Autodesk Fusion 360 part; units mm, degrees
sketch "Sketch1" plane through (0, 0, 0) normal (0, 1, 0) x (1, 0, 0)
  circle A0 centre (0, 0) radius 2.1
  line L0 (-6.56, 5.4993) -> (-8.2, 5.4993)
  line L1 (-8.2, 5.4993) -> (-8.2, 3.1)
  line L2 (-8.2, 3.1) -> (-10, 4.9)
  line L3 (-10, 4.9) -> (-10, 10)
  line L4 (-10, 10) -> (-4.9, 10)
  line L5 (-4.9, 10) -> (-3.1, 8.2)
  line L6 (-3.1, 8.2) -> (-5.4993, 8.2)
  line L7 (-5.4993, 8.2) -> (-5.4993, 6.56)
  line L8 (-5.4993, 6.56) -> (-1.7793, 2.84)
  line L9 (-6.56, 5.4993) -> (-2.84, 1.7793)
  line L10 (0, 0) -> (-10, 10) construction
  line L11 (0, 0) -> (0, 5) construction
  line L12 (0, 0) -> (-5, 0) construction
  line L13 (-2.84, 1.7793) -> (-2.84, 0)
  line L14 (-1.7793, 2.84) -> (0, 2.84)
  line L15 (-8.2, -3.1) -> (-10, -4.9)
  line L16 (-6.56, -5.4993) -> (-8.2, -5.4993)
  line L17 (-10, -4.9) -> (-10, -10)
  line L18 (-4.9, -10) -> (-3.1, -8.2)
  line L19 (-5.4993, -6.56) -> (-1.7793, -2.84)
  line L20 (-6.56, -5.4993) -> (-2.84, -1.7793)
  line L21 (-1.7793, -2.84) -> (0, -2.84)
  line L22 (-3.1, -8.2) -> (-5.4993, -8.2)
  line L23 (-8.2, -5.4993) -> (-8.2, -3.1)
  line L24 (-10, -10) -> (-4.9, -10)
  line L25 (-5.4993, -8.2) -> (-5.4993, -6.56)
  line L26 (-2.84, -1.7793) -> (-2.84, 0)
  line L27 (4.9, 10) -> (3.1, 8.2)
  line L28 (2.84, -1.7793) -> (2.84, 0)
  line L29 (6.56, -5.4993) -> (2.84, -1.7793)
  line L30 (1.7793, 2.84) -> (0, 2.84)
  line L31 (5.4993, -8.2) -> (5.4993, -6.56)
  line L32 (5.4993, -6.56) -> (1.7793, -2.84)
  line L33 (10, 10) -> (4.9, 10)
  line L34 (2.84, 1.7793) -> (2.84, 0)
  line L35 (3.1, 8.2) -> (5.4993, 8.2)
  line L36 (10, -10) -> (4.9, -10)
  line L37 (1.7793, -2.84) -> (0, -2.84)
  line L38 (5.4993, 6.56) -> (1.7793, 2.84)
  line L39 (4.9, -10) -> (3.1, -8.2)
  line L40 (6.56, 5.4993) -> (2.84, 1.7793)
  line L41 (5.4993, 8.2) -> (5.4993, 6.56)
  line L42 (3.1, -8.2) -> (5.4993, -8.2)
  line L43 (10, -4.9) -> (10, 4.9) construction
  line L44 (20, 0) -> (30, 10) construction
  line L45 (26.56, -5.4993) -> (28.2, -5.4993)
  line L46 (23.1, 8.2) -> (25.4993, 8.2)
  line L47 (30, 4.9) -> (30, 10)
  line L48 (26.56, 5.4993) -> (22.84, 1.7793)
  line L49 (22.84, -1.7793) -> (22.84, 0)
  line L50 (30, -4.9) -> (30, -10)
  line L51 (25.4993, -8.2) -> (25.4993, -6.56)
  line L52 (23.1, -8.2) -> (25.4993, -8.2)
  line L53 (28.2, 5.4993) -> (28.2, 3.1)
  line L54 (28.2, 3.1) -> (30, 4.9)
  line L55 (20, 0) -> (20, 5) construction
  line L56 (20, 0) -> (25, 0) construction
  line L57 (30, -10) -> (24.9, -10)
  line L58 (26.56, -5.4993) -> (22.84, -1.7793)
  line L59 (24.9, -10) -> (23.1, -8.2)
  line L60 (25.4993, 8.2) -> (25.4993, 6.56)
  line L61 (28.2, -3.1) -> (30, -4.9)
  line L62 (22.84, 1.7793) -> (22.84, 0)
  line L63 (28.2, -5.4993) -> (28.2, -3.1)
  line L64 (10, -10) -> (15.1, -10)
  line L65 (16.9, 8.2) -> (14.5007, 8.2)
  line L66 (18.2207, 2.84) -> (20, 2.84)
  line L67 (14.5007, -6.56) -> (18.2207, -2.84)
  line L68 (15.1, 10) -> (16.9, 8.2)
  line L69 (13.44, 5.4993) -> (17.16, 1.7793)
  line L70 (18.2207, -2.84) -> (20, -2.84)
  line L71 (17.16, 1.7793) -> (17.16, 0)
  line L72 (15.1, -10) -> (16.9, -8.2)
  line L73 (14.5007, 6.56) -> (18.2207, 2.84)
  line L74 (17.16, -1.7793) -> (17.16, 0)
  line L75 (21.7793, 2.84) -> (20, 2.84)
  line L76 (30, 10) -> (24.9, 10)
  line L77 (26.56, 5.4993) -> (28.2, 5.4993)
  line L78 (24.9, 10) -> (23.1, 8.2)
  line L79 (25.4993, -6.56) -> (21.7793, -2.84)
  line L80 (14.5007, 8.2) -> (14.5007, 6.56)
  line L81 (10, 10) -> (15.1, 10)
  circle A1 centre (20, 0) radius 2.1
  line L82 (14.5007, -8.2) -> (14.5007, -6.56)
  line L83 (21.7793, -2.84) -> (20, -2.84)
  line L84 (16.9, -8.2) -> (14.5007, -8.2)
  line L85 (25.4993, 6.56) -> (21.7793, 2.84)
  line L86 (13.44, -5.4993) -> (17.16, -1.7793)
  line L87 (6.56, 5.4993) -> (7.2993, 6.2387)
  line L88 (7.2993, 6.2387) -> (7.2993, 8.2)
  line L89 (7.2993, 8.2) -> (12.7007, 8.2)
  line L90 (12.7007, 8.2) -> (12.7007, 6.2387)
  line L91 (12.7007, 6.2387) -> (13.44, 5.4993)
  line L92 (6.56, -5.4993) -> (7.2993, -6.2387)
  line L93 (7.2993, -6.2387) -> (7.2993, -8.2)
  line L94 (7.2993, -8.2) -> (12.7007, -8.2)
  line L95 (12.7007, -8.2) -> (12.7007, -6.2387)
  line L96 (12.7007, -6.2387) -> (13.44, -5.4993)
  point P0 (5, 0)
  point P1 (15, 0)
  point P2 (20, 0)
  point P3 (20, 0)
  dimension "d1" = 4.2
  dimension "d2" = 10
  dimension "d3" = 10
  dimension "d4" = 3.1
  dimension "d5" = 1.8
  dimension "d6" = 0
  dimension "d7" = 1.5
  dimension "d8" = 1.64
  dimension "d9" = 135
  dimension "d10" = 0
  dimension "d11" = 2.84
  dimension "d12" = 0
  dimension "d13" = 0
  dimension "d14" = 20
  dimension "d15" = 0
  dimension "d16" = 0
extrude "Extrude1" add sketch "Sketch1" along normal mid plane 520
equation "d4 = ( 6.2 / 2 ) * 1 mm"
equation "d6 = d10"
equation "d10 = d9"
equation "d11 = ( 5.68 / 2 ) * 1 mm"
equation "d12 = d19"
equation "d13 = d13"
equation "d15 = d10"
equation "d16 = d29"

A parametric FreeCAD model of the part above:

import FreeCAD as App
import Part
import Sketcher
Q = App.Units.Quantity


def add_polygon(sketch, points):
    """Adds a closed chain of lines whose ends are joined by coincident constraints."""
    first, n = sketch.GeometryCount, len(points)
    for a, b in zip(points, points[1:] + points[:1]):
        sketch.addGeometry(Part.LineSegment(App.Vector(*a, 0), App.Vector(*b, 0)), False)
    for i in range(n):
        sketch.addConstraint(Sketcher.Constraint("Coincident", first + i, 2, first + (i + 1) % n, 1))

doc = App.newDocument("Part")
params = doc.addObject("Spreadsheet::Sheet", "Params")
for row, (alias, value) in enumerate([
    ("sketch1_diameter", "4.2 mm"),
    ("sketch1_width", "1.64 mm"),
    ("sketch1_width2", "5.1 mm"),
    ("sketch1_width3", "10.2 mm"),
    ("pad1_length", "520 mm"),
], start=1):
    params.set(f"A{row}", alias)
    params.set(f"B{row}", "=" + value)
    params.setAlias(f"B{row}", alias)

body = doc.addObject("PartDesign::Body", "Body")

sketch1 = doc.addObject("Sketcher::SketchObject", "Sketch")
body.addObject(sketch1)
sketch1.AttachmentSupport = (doc.XZ_Plane, [""])
sketch1.MapMode = "FlatFace"
add_polygon(sketch1, [(-8.2, -5.5), (-6.6, -5.5), (-2.8, -1.8), (-2.8, 1.8), (-6.6, 5.5), (-8.2, 5.5), (-8.2, 3.1), (-10, 4.9), (-10, 10), (-4.9, 10), (-3.1, 8.2), (-5.5, 8.2), (-5.5, 6.6), (-1.8, 2.8), (1.8, 2.8), (5.5, 6.6), (5.5, 8.2), (3.1, 8.2), (4.9, 10), (15.1, 10), (16.9, 8.2), (14.5, 8.2), (14.5, 6.6), (18.2, 2.8), (21.8, 2.8), (25.5, 6.6), (25.5, 8.2), (23.1, 8.2), (24.9, 10), (30, 10), (30, 4.9), (28.2, 3.1), (28.2, 5.5), (26.6, 5.5), (22.8, 1.8), (22.8, -1.8), (26.6, -5.5), (28.2, -5.5), (28.2, -3.1), (30, -4.9), (30, -10), (24.9, -10), (23.1, -8.2), (25.5, -8.2), (25.5, -6.6), (21.8, -2.8), (18.2, -2.8), (14.5, -6.6), (14.5, -8.2), (16.9, -8.2), (15.1, -10), (4.9, -10), (3.1, -8.2), (5.5, -8.2), (5.5, -6.6), (1.8, -2.8), (-1.8, -2.8), (-5.5, -6.6), (-5.5, -8.2), (-3.1, -8.2), (-4.9, -10), (-10, -10), (-10, -4.9), (-8.2, -3.1)])
sketch1.addGeometry(Part.Circle(App.Vector(0, 0, 0), App.Vector(0, 0, 1), 2.1), False)
add_polygon(sketch1, [(6.6, 5.5), (2.8, 1.8), (2.8, -1.8), (6.6, -5.5), (7.3, -6.2), (7.3, -8.2), (12.7, -8.2), (12.7, -6.2), (13.4, -5.5), (17.2, -1.8), (17.2, 1.8), (13.4, 5.5), (12.7, 6.2), (12.7, 8.2), (7.3, 8.2), (7.3, 6.2)])
sketch1.addGeometry(Part.Circle(App.Vector(20, 0, 0), App.Vector(0, 0, 1), 2.1), False)
sketch1.addConstraint([
    Sketcher.Constraint("Horizontal", 0),
    Sketcher.Constraint("Vertical", 2),
    Sketcher.Constraint("Horizontal", 4),
    Sketcher.Constraint("Vertical", 5),
    Sketcher.Constraint("Vertical", 7),
    Sketcher.Constraint("Horizontal", 8),
    Sketcher.Constraint("Horizontal", 10),
    Sketcher.Constraint("Vertical", 11),
    Sketcher.Constraint("Horizontal", 13),
    Sketcher.Constraint("Vertical", 15),
    Sketcher.Constraint("Horizontal", 16),
    Sketcher.Constraint("Horizontal", 18),
    Sketcher.Constraint("Horizontal", 20),
    Sketcher.Constraint("Vertical", 21),
    Sketcher.Constraint("Horizontal", 23),
    Sketcher.Constraint("Vertical", 25),
    Sketcher.Constraint("Horizontal", 26),
    Sketcher.Constraint("Horizontal", 28),
    Sketcher.Constraint("Vertical", 29),
    Sketcher.Constraint("Vertical", 31),
    Sketcher.Constraint("Horizontal", 32),
    Sketcher.Constraint("Vertical", 34),
    Sketcher.Constraint("Horizontal", 36),
    Sketcher.Constraint("Vertical", 37),
    Sketcher.Constraint("Vertical", 39),
    Sketcher.Constraint("Horizontal", 40),
    Sketcher.Constraint("Horizontal", 42),
    Sketcher.Constraint("Vertical", 43),
    Sketcher.Constraint("Horizontal", 45),
    Sketcher.Constraint("Vertical", 47),
    Sketcher.Constraint("Horizontal", 48),
    Sketcher.Constraint("Horizontal", 50),
    Sketcher.Constraint("Horizontal", 52),
    Sketcher.Constraint("Vertical", 53),
    Sketcher.Constraint("Horizontal", 55),
    Sketcher.Constraint("Vertical", 57),
    Sketcher.Constraint("Horizontal", 58),
    Sketcher.Constraint("Horizontal", 60),
    Sketcher.Constraint("Vertical", 61),
    Sketcher.Constraint("Vertical", 63),
    Sketcher.Constraint("Vertical", 66),
    Sketcher.Constraint("Vertical", 69),
    Sketcher.Constraint("Horizontal", 70),
    Sketcher.Constraint("Vertical", 71),
    Sketcher.Constraint("Vertical", 74),
    Sketcher.Constraint("Vertical", 77),
    Sketcher.Constraint("Horizontal", 78),
    Sketcher.Constraint("Vertical", 79),
    Sketcher.Constraint("Coincident", 64, 3, -1, 1),
    Sketcher.Constraint("Equal", 64, 81),
    Sketcher.Constraint("Symmetric", 8, 2, 50, 2, -1, 1),
    Sketcher.Constraint("Symmetric", 9, 2, 51, 2, -1, 1),
    Sketcher.Constraint("Symmetric", 11, 2, 53, 2, -1, 1),
    Sketcher.Constraint("Symmetric", 12, 2, 54, 2, -1, 1),
    Sketcher.Constraint("Symmetric", 14, 2, 56, 2, -1, 1),
    Sketcher.Constraint("Symmetric", 16, 2, 58, 2, -1, 1),
    Sketcher.Constraint("Symmetric", 17, 2, 59, 2, -1, 1),
    Sketcher.Constraint("Symmetric", 1, 2, 65, 2, -1, 1),
    Sketcher.Constraint("Symmetric", 3, 2, 67, 2, -1, 1),
    Sketcher.Constraint("Symmetric", 0, 2, 80, 2, -1, 1),
    Sketcher.Constraint("Symmetric", 11, 2, 14, 2, -2),
    Sketcher.Constraint("Symmetric", 9, 2, 16, 2, -2),
    Sketcher.Constraint("Symmetric", 8, 2, 17, 2, -2),
    Sketcher.Constraint("Symmetric", 0, 2, 67, 2, -2),
    Sketcher.Constraint("Symmetric", 32, 2, 35, 2, -1),
    Sketcher.Constraint("Symmetric", 30, 2, 37, 2, -1),
    Sketcher.Constraint("Symmetric", 29, 2, 38, 2, -1),
    Sketcher.Constraint("Symmetric", 27, 2, 40, 2, -1),
    Sketcher.Constraint("Symmetric", 26, 2, 41, 2, -1),
    Sketcher.Constraint("Symmetric", 24, 2, 43, 2, -1),
    Sketcher.Constraint("Symmetric", 23, 2, 44, 2, -1),
    Sketcher.Constraint("Symmetric", 21, 2, 46, 2, -1),
    Sketcher.Constraint("Symmetric", 19, 2, 48, 2, -1),
    Sketcher.Constraint("Symmetric", 6, 2, 61, 2, -1),
    Sketcher.Constraint("Symmetric", 5, 2, 62, 2, -1),
    Sketcher.Constraint("Symmetric", 72, 2, 75, 2, -1),
    Sketcher.Constraint("Symmetric", 71, 2, 76, 2, -1),
    Sketcher.Constraint("Symmetric", 69, 2, 78, 2, -1),
    Sketcher.Constraint("PointOnObject", 81, 3, -1),
    Sketcher.Constraint("Perpendicular", 1, 3),
    Sketcher.Constraint("Parallel", 3, 6),
    Sketcher.Constraint("Parallel", 6, 9),
    Sketcher.Constraint("Parallel", 9, 12),
    Sketcher.Constraint("Perpendicular", 12, 14),
    Sketcher.Constraint("Parallel", 14, 17),
    Sketcher.Constraint("Perpendicular", 17, 19),
    Sketcher.Constraint("Parallel", 19, 22),
    Sketcher.Constraint("Perpendicular", 22, 24),
    Sketcher.Constraint("Parallel", 24, 27),
    Sketcher.Constraint("Parallel", 27, 30),
    Sketcher.Constraint("Parallel", 30, 33),
    Sketcher.Constraint("Perpendicular", 33, 35),
    Sketcher.Constraint("Perpendicular", 44, 46),
    Sketcher.Constraint("Parallel", 46, 49),
    Sketcher.Constraint("Perpendicular", 54, 56),
    Sketcher.Constraint("Perpendicular", 65, 67),
    Sketcher.Constraint("Parallel", 67, 68),
    Sketcher.Constraint("Perpendicular", 68, 72),
    Sketcher.Constraint("Parallel", 72, 73),
    Sketcher.Constraint("Perpendicular", 73, 75),
    Sketcher.Constraint("Perpendicular", 76, 80),
    Sketcher.Constraint("Horizontal", 16, 2, 19, 2),
    Sketcher.Constraint("Horizontal", 14, 2, 21, 2),
    Sketcher.Constraint("Horizontal", 13, 2, 22, 2),
    Sketcher.Constraint("Horizontal", 21, 2, 24, 2),
    Sketcher.Constraint("Horizontal", 20, 2, 25, 2),
    Sketcher.Constraint("Horizontal", 18, 2, 27, 2),
    Sketcher.Constraint("Horizontal", 6, 2, 29, 2),
    Sketcher.Constraint("Horizontal", 5, 2, 30, 2),
    Sketcher.Constraint("Horizontal", 4, 2, 31, 2),
    Sketcher.Constraint("Horizontal", 2, 2, 33, 2),
    Sketcher.Constraint("Horizontal", 58, 2, 69, 2),
    Sketcher.Constraint("Horizontal", 68, 2, 71, 2),
    Sketcher.Constraint("Horizontal", 67, 2, 72, 2),
    Sketcher.Constraint("Horizontal", 66, 2, 73, 2),
    Sketcher.Constraint("Equal", 16, 20),
    Sketcher.Constraint("Equal", 13, 23),
    Sketcher.Constraint("Equal", 20, 26),
    Sketcher.Constraint("Equal", 8, 28),
    Sketcher.Constraint("Equal", 4, 32),
    Sketcher.Constraint("Equal", 55, 2),
    Sketcher.Constraint("Equal", 58, 5),
    Sketcher.Constraint("Equal", 60, 7),
    Sketcher.Constraint("Equal", 36, 11),
    Sketcher.Constraint("Equal", 6, 9),
    Sketcher.Constraint("Equal", 3, 12),
    Sketcher.Constraint("Diameter", 64, Q("4.2 mm")),
    Sketcher.Constraint("DistanceX", -1, 1, 81, 3, Q("20 mm")),
    Sketcher.Constraint("DistanceX", 6, 2, -1, 1, Q("10 mm")),
    Sketcher.Constraint("DistanceX", 0, 1, 0, 2, Q("1.64 mm")),
    Sketcher.Constraint("DistanceY", -1, 1, 5, 2, Q("3.1 mm")),
    Sketcher.Constraint("DistanceX", 1, 2, -1, 1, Q("2.84 mm")),
    Sketcher.Constraint("DistanceX", 8, 1, 8, 2, Q("5.1 mm")),
    Sketcher.Constraint("DistanceX", 18, 1, 18, 2, Q("10.2 mm")),
    Sketcher.Constraint("DistanceX", -1, 1, 72, 2, Q("13.44 mm")),
    Sketcher.Constraint("DistanceX", 10, 2, 10, 1, Q("2.3993 mm")),
    Sketcher.Constraint("DistanceX", 70, 1, 70, 2, Q("5.4014 mm")),
])
sketch1.setExpression("Constraints[206]", "Params.sketch1_diameter")
sketch1.setExpression("Constraints[209]", "Params.sketch1_width")
sketch1.setExpression("Constraints[212]", "Params.sketch1_width2")
sketch1.setExpression("Constraints[213]", "Params.sketch1_width3")
pad1 = doc.addObject("PartDesign::Pad", "Pad")
body.addObject(pad1)
pad1.Profile = sketch1
pad1.setExpression("Length", "Params.pad1_length")
pad1.Midplane = True

doc.recompute()
